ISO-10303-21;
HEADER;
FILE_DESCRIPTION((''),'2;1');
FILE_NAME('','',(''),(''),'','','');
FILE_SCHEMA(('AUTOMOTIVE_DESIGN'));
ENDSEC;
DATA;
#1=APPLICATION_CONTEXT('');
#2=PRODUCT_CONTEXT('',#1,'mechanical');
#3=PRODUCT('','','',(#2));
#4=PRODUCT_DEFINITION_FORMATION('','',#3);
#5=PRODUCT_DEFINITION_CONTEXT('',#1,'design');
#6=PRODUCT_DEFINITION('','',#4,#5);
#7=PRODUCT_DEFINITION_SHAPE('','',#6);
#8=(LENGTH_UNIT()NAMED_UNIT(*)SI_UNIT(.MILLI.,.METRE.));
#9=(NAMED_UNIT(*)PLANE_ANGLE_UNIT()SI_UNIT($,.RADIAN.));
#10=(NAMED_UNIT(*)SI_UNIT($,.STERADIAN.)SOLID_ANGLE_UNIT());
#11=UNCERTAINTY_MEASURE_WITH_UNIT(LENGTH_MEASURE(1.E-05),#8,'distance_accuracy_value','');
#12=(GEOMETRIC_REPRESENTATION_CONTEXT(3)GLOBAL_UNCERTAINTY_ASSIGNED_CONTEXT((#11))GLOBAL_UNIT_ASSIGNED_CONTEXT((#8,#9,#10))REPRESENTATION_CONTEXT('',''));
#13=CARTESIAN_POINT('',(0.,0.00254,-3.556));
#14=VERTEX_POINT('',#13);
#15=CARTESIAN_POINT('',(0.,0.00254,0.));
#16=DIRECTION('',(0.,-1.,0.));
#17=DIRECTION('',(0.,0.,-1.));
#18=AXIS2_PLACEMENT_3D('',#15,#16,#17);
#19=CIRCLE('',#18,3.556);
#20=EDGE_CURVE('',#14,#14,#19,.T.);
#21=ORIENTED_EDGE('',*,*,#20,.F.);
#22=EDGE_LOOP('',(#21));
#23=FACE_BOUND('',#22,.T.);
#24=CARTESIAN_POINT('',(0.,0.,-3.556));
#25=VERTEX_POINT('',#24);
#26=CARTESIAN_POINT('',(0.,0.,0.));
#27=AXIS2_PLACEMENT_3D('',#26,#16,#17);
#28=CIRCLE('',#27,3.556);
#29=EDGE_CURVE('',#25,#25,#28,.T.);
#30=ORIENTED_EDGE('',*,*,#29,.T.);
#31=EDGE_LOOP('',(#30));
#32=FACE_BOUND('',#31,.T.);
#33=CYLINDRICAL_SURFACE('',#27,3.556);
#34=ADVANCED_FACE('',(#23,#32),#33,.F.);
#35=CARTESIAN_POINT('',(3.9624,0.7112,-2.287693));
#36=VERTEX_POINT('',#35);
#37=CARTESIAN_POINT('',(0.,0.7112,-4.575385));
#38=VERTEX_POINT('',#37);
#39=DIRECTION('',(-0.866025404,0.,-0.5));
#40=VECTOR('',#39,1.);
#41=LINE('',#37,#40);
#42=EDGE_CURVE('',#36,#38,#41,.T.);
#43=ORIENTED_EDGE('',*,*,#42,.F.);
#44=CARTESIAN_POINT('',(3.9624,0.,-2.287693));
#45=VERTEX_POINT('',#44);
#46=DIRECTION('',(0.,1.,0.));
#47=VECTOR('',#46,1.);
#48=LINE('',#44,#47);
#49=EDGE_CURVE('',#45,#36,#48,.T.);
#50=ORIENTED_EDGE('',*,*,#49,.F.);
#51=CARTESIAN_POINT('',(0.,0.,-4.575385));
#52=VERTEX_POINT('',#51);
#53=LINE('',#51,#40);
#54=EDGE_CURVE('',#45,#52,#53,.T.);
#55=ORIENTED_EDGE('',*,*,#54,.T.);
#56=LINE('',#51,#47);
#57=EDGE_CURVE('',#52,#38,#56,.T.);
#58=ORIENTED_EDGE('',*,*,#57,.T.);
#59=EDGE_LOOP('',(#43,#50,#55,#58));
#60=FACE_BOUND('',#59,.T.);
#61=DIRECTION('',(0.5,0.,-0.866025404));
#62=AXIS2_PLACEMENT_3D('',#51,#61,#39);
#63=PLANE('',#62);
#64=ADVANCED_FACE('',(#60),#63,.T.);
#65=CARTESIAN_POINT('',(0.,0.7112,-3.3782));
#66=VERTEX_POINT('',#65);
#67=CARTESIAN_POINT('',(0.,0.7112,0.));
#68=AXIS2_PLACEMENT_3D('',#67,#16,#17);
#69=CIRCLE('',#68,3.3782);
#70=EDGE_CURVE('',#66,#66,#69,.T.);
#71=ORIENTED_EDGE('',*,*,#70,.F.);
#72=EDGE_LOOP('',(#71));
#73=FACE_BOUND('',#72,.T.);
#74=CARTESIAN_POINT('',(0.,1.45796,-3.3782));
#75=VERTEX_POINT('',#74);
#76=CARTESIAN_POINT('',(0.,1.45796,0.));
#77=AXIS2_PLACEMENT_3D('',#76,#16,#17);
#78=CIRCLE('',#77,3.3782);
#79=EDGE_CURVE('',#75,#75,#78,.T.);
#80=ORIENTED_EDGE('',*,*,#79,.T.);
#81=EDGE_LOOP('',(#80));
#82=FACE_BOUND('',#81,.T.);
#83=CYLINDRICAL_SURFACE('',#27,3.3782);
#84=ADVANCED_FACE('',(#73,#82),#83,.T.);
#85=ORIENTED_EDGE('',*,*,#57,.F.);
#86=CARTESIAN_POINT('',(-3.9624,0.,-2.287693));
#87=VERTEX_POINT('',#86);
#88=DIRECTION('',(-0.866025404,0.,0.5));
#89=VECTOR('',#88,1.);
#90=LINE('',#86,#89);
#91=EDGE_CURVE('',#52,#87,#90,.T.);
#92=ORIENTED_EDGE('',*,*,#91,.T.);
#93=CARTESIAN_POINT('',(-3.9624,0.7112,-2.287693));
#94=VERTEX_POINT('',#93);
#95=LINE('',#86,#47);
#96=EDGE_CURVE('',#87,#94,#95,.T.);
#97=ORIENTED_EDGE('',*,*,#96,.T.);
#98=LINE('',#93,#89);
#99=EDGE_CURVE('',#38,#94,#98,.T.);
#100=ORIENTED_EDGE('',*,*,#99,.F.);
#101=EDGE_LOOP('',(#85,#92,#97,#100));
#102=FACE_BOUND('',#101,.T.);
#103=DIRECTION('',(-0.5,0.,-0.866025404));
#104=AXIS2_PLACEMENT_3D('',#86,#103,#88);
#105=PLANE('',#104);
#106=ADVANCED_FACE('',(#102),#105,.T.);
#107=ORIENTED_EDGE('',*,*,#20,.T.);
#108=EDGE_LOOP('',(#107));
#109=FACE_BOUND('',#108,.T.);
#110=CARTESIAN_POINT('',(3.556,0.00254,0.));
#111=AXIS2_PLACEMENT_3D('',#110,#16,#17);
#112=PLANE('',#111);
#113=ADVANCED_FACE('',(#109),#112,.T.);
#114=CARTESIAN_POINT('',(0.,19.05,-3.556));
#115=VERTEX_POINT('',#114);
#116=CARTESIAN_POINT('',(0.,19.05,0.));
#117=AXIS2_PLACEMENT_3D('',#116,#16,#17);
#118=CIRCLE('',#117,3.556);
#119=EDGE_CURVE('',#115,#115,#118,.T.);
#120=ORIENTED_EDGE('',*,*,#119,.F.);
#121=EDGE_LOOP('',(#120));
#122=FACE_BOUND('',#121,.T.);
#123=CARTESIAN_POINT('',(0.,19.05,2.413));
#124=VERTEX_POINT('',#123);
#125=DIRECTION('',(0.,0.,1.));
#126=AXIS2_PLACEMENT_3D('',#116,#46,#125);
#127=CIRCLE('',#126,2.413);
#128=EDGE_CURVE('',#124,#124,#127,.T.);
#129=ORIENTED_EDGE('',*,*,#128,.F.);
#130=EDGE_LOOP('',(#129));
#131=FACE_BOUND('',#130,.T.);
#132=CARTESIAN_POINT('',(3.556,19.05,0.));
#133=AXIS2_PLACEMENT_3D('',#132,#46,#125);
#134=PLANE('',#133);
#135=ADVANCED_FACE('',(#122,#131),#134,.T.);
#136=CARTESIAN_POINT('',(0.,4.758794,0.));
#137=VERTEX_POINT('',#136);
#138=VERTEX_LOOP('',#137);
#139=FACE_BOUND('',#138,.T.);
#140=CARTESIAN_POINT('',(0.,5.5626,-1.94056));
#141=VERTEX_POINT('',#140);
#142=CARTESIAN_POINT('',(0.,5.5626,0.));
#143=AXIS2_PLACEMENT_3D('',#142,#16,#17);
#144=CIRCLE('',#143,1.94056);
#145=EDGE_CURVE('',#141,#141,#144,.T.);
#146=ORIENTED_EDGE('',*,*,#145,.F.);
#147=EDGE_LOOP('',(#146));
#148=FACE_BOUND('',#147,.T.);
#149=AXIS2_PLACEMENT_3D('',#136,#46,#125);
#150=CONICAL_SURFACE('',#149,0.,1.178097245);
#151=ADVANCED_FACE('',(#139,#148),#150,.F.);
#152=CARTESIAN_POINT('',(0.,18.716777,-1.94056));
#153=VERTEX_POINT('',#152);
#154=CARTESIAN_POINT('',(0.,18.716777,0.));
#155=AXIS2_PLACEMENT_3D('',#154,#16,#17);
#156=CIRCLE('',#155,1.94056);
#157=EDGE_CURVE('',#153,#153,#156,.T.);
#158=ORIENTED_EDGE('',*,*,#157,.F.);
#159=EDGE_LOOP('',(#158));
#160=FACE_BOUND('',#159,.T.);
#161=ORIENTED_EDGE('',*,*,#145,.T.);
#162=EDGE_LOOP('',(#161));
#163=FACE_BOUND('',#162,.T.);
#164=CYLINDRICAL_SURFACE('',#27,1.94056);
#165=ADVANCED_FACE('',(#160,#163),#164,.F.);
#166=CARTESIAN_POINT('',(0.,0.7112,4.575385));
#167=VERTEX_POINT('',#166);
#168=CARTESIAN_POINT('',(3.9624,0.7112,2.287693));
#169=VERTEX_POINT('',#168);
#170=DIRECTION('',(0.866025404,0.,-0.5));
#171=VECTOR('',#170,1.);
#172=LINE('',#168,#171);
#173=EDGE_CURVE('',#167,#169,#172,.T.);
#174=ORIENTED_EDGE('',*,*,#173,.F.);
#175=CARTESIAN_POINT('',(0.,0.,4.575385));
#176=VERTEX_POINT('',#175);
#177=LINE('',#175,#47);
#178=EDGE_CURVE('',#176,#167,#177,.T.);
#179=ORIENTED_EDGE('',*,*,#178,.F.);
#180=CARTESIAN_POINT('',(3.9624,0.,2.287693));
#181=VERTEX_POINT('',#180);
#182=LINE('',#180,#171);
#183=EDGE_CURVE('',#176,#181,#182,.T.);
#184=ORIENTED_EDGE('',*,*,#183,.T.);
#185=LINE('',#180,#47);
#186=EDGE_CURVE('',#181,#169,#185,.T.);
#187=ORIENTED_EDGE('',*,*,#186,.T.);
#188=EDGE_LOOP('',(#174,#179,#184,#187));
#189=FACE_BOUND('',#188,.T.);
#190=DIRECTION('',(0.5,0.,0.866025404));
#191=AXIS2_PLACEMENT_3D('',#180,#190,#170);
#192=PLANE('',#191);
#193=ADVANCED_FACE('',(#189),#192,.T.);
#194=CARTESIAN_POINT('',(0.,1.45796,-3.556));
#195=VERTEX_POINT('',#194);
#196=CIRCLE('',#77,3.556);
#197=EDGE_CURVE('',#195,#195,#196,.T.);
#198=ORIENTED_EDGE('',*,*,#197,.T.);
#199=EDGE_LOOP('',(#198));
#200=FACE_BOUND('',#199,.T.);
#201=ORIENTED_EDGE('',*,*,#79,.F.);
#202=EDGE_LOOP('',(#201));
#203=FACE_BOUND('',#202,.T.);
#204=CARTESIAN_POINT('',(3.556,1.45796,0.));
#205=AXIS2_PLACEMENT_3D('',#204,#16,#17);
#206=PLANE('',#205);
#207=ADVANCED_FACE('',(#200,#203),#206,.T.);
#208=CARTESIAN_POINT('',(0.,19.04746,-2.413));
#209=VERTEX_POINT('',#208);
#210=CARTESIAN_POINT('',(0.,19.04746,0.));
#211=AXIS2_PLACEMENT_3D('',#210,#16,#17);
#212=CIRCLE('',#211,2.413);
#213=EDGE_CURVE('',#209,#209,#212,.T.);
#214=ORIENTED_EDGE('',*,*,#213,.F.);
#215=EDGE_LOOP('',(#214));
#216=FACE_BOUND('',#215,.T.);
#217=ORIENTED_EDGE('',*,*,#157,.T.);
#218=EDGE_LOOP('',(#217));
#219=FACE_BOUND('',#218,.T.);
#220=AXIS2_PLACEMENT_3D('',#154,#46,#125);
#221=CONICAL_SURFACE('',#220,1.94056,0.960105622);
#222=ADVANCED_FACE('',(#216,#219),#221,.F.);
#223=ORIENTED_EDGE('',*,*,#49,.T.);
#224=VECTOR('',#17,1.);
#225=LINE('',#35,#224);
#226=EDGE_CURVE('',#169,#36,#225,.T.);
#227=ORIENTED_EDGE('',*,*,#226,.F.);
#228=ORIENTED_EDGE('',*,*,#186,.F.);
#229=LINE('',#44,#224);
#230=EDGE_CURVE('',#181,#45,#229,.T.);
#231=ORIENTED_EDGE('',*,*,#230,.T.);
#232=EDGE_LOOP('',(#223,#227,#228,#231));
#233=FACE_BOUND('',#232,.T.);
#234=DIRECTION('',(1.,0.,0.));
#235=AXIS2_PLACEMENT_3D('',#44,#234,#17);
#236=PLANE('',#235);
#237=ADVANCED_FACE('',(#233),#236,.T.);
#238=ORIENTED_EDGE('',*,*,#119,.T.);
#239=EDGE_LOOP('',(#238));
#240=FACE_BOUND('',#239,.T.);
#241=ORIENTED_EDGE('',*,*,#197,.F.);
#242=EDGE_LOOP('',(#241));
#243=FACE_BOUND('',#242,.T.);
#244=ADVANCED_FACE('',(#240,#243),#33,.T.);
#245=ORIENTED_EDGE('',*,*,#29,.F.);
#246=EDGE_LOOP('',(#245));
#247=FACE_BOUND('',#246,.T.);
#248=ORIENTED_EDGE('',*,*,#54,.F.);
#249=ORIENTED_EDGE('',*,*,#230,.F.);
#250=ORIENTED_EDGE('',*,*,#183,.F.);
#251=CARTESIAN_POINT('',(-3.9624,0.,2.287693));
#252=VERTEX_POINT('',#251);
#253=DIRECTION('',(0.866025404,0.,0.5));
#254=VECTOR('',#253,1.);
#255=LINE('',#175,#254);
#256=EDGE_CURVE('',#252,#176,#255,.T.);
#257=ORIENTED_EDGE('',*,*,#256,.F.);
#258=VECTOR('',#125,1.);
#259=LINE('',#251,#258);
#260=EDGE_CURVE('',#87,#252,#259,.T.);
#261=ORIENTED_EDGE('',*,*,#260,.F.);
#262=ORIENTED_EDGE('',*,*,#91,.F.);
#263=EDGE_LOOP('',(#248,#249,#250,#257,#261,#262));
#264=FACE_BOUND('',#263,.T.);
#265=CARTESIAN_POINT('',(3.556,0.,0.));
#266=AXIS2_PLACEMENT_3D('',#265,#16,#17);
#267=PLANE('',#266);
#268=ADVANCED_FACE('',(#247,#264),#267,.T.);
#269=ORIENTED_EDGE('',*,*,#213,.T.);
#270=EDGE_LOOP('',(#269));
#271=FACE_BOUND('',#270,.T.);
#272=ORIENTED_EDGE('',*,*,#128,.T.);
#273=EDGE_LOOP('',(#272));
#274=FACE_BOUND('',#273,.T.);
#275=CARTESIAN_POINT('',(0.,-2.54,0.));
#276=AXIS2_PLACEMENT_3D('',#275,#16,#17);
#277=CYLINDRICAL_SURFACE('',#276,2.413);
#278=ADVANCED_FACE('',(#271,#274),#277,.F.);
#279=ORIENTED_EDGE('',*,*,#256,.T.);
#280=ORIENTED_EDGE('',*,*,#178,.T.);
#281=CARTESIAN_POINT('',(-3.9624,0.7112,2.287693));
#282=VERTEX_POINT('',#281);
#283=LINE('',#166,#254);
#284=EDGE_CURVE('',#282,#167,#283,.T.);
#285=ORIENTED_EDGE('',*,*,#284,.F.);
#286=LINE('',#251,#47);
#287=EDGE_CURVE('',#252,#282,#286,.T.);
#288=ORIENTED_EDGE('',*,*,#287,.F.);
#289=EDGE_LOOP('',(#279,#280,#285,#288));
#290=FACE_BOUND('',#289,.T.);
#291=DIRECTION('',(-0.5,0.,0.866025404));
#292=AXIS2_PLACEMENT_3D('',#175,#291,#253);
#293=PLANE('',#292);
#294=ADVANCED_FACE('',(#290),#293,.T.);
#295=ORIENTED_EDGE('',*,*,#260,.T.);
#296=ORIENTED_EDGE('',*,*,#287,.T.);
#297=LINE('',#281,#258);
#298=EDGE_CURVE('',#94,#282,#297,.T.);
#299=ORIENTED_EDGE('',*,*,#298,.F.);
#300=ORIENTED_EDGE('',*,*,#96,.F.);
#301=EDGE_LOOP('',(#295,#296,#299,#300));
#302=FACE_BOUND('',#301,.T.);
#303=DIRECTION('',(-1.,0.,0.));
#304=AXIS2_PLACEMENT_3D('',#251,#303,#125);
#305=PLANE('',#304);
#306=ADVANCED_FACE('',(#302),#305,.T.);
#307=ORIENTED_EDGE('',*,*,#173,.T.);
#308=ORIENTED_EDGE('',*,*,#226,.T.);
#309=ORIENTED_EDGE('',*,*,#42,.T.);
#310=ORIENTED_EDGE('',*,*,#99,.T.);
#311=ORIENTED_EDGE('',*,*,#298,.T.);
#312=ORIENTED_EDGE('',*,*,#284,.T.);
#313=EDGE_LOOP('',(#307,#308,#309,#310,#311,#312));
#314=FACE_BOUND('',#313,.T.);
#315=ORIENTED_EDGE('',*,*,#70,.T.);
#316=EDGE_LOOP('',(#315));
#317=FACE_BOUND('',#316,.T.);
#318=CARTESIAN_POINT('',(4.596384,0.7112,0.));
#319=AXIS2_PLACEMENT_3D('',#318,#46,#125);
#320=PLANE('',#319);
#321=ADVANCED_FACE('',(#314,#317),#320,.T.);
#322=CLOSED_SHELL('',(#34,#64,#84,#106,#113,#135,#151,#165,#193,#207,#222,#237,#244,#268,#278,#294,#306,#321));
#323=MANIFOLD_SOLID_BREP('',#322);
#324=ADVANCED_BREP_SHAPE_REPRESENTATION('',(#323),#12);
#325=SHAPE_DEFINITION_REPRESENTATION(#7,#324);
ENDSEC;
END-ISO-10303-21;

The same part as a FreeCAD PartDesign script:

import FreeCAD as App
import Part
import Sketcher
from FreeCAD import Vector
Q = App.Units.Quantity

doc = App.newDocument("Part")
params = doc.addObject("Spreadsheet::Sheet", "Params")
for row, (alias, value) in enumerate([
    ("sketch1_width", "0.14 in"),
    ("sketch1_width2", "0.007 in"),
    ("sketch1_height", "0.028 in"),
    ("sketch1_height2", "0.375 in"),
    ("revolution_angle", "360 deg"),
    ("sketch2_height", "0.531 in"),
    ("groove_angle", "360 deg"),
    ("groove2_angle", "360 deg"),
    ("pocket1_length", "0.028 in"),
], start=1):
    params.set(f"A{row}", alias)
    params.set(f"B{row}", "=" + value)
    params.setAlias(f"B{row}", alias)

body = doc.addObject("PartDesign::Body", "Body")

# Sketch on XY plane
sketch1 = body.newObject("Sketcher::SketchObject", "Sketch")
sketch1.AttachmentSupport = (doc.getObject("XY_Plane"), [""])
sketch1.MapMode = "FlatFace"
sketch1.addGeometry([
    Part.LineSegment(Vector(3.556, 0, 0), Vector(4.5964, 0, 0)),  # 0
    Part.LineSegment(Vector(4.5964, 0, 0), Vector(4.5964, 0.7112, 0)),  # 1
    Part.LineSegment(Vector(4.5964, 0.7112, 0), Vector(3.3782, 0.7112, 0)),  # 2
    Part.LineSegment(Vector(3.3782, 0.7112, 0), Vector(3.3782, 1.458, 0)),  # 3
    Part.LineSegment(Vector(3.3782, 1.458, 0), Vector(3.556, 1.458, 0)),  # 4
    Part.LineSegment(Vector(3.556, 1.458, 0), Vector(3.556, 19.05, 0)),  # 5
    Part.LineSegment(Vector(3.556, 19.05, 0), Vector(1.9406, 19.05, 0)),  # 6
    Part.LineSegment(Vector(1.9406, 19.05, 0), Vector(1.9406, 9.525, 0)),  # 7
    Part.LineSegment(Vector(1.9406, 9.525, 0), Vector(0, 9.525, 0)),  # 8
    Part.LineSegment(Vector(0, 9.525, 0), Vector(0, 0.0025, 0)),  # 9
    Part.LineSegment(Vector(0, 0.0025, 0), Vector(3.556, 0.0025, 0)),  # 10
    Part.LineSegment(Vector(3.556, 0.0025, 0), Vector(3.556, 0, 0)),  # 11
], False)
sketch1.addConstraint([
    Sketcher.Constraint("Coincident", 0, 2, 1, 1),
    Sketcher.Constraint("Coincident", 1, 2, 2, 1),
    Sketcher.Constraint("Coincident", 2, 2, 3, 1),
    Sketcher.Constraint("Coincident", 3, 2, 4, 1),
    Sketcher.Constraint("Coincident", 4, 2, 5, 1),
    Sketcher.Constraint("Coincident", 5, 2, 6, 1),
    Sketcher.Constraint("Coincident", 6, 2, 7, 1),
    Sketcher.Constraint("Coincident", 7, 2, 8, 1),
    Sketcher.Constraint("Coincident", 8, 2, 9, 1),
    Sketcher.Constraint("Coincident", 9, 2, 10, 1),
    Sketcher.Constraint("Coincident", 10, 2, 11, 1),
    Sketcher.Constraint("Coincident", 11, 2, 0, 1),
    Sketcher.Constraint("Horizontal", 0),
    Sketcher.Constraint("Vertical", 1),
    Sketcher.Constraint("Horizontal", 2),
    Sketcher.Constraint("Vertical", 3),
    Sketcher.Constraint("Horizontal", 4),
    Sketcher.Constraint("Vertical", 5),
    Sketcher.Constraint("Horizontal", 6),
    Sketcher.Constraint("Vertical", 7),
    Sketcher.Constraint("Horizontal", 8),
    Sketcher.Constraint("Vertical", 9),
    Sketcher.Constraint("Horizontal", 10),
    Sketcher.Constraint("Vertical", 11),
    Sketcher.Constraint("PointOnObject", 0, 2, -1),
    Sketcher.Constraint("PointOnObject", 8, 2, -2),
    Sketcher.Constraint("Vertical", 5, 2, 10, 2),
    Sketcher.Constraint("DistanceX", 10, 1, 10, 2, Q("0.14 in")),
    Sketcher.Constraint("DistanceX", 4, 1, 4, 2, Q("0.007 in")),
    Sketcher.Constraint("DistanceY", 1, 1, 1, 2, Q("0.028 in")),
    Sketcher.Constraint("DistanceY", 7, 2, 7, 1, Q("0.375 in")),
    Sketcher.Constraint("DistanceY", -1, 1, 5, 2, Q("0.75 in")),
    Sketcher.Constraint("DistanceX", 6, 2, 6, 1, Q("0.0636 in")),
    Sketcher.Constraint("DistanceY", 3, 1, 3, 2, Q("0.0294 in")),
    Sketcher.Constraint("DistanceY", 9, 2, 9, 1, Q("0.3749 in")),
    Sketcher.Constraint("DistanceX", 0, 1, 0, 2, Q("1.040384 mm")),
])
sketch1.setExpression("Constraints[27]", "Params.sketch1_width")
sketch1.setExpression("Constraints[28]", "Params.sketch1_width2")
sketch1.setExpression("Constraints[29]", "Params.sketch1_height")
sketch1.setExpression("Constraints[30]", "Params.sketch1_height2")
revolution = body.newObject("PartDesign::Revolution", "Revolution")
revolution.Profile = sketch1
revolution.ReferenceAxis = (sketch1, ["V_Axis"])
revolution.setExpression("Angle", "Params.revolution_angle")

# Sketch on XY plane
sketch2 = body.newObject("Sketcher::SketchObject", "Sketch001")
sketch2.AttachmentSupport = (doc.getObject("XY_Plane"), [""])
sketch2.MapMode = "FlatFace"
sketch2.addGeometry([
    Part.LineSegment(Vector(1.9, 5.6, 0), Vector(1.9, 19.1, 0)),
    Part.LineSegment(Vector(1.9, 19.1, 0), Vector(0, 19.1, 0)),
    Part.LineSegment(Vector(0, 19.1, 0), Vector(0, 4.8, 0)),
    Part.LineSegment(Vector(0, 4.8, 0), Vector(1.9, 5.6, 0)),
], False)
sketch2.addConstraint([
    Sketcher.Constraint("Coincident", 0, 2, 1, 1),
    Sketcher.Constraint("Coincident", 1, 2, 2, 1),
    Sketcher.Constraint("Coincident", 2, 2, 3, 1),
    Sketcher.Constraint("Coincident", 3, 2, 0, 1),
    Sketcher.Constraint("Vertical", 0),
    Sketcher.Constraint("Horizontal", 1),
    Sketcher.Constraint("Vertical", 2),
    Sketcher.Constraint("PointOnObject", 1, 2, -2),
    Sketcher.Constraint("Angle", 3, Q("22.5 deg")),
    Sketcher.Constraint("DistanceY", 0, 1, 0, 2, Q("0.531 in")),
    Sketcher.Constraint("DistanceY", -1, 1, 0, 2, Q("0.75 in")),
    Sketcher.Constraint("DistanceX", 1, 2, 1, 1, Q("0.0764 in")),
])
sketch2.setExpression("Constraints[9]", "Params.sketch2_height")
groove = body.newObject("PartDesign::Groove", "Groove")
groove.Profile = sketch2
groove.ReferenceAxis = (sketch2, ["V_Axis"])
groove.setExpression("Angle", "Params.groove_angle")

# Sketch on XY plane
sketch3 = body.newObject("Sketcher::SketchObject", "Sketch002")
sketch3.AttachmentSupport = (doc.getObject("XY_Plane"), [""])
sketch3.MapMode = "FlatFace"
sketch3.addGeometry([
    Part.LineSegment(Vector(1.94, 18.72, 0), Vector(2.41, 19.05, 0)),
    Part.LineSegment(Vector(2.41, 19.05, 0), Vector(2.41, 19.3, 0)),
    Part.LineSegment(Vector(2.41, 19.3, 0), Vector(1.94, 19.3, 0)),
    Part.LineSegment(Vector(1.94, 19.3, 0), Vector(1.94, 18.72, 0)),
], False)
sketch3.addConstraint([
    Sketcher.Constraint("Coincident", 0, 2, 1, 1),
    Sketcher.Constraint("Coincident", 1, 2, 2, 1),
    Sketcher.Constraint("Coincident", 2, 2, 3, 1),
    Sketcher.Constraint("Coincident", 3, 2, 0, 1),
    Sketcher.Constraint("Vertical", 1),
    Sketcher.Constraint("Horizontal", 2),
    Sketcher.Constraint("Vertical", 3),
    Sketcher.Constraint("DistanceY", -1, 1, 1, 2, Q("0.76 in")),
    Sketcher.Constraint("Angle", 0, Q("34.99 deg")),
    Sketcher.Constraint("DistanceX", 2, 2, 2, 1, Q("0.0186 in")),
    Sketcher.Constraint("DistanceY", 1, 1, 1, 2, Q("0.0101 in")),
    Sketcher.Constraint("DistanceX", -1, 1, 0, 2, Q("0.095 in")),
])
groove2 = body.newObject("PartDesign::Groove", "Groove001")
groove2.Profile = sketch3
groove2.ReferenceAxis = (sketch3, ["V_Axis"])
groove2.setExpression("Angle", "Params.groove2_angle")

# Sketch on XZ plane
sketch4 = body.newObject("Sketcher::SketchObject", "Sketch003")
sketch4.AttachmentSupport = (doc.getObject("XZ_Plane"), [""])
sketch4.MapMode = "FlatFace"
sketch4.AttachmentOffset = App.Placement(Vector(0, 0, -0.028 * 25.4), App.Rotation())
sketch4.addGeometry([
    Part.Circle(Vector(0, 0, 0), Vector(0, 0, 1), 4.6),  # 0
    Part.LineSegment(Vector(4, 2.3, 0), Vector(0, 4.6, 0)),  # 1
    Part.LineSegment(Vector(0, 4.6, 0), Vector(-4, 2.3, 0)),  # 2
    Part.LineSegment(Vector(-4, 2.3, 0), Vector(-4, -2.3, 0)),  # 3
    Part.LineSegment(Vector(-4, -2.3, 0), Vector(0, -4.6, 0)),  # 4
    Part.LineSegment(Vector(0, -4.6, 0), Vector(4, -2.3, 0)),  # 5
    Part.LineSegment(Vector(4, -2.3, 0), Vector(4, 2.3, 0)),  # 6
], False)
sketch4.addConstraint([
    Sketcher.Constraint("Coincident", 1, 2, 2, 1),
    Sketcher.Constraint("Coincident", 2, 2, 3, 1),
    Sketcher.Constraint("Coincident", 3, 2, 4, 1),
    Sketcher.Constraint("Coincident", 4, 2, 5, 1),
    Sketcher.Constraint("Coincident", 5, 2, 6, 1),
    Sketcher.Constraint("Coincident", 6, 2, 1, 1),
    Sketcher.Constraint("Vertical", 3),
    Sketcher.Constraint("Vertical", 6),
    Sketcher.Constraint("Coincident", 0, 3, -1, 1),
    Sketcher.Constraint("Symmetric", 1, 2, 4, 2, -1, 1),
    Sketcher.Constraint("Symmetric", 2, 2, 5, 2, -1, 1),
    Sketcher.Constraint("PointOnObject", 1, 2, -2),
    Sketcher.Constraint("Parallel", 1, 4),
    Sketcher.Constraint("Horizontal", 3, 2, 5, 2),
    Sketcher.Constraint("Angle", 1, Q("150 deg")),
    Sketcher.Constraint("DistanceX", 2, 2, -1, 1, Q("0.156 in")),
    Sketcher.Constraint("Diameter", 0, Q("9.218168 mm")),
    Sketcher.Constraint("DistanceY", 3, 2, 1, 2, Q("0.2701999 in")),
])
pocket1 = body.newObject("PartDesign::Pocket", "Pocket")
pocket1.Profile = sketch4
pocket1.setExpression("Length", "Params.pocket1_length")
pocket1.Reversed = True

doc.recompute()
